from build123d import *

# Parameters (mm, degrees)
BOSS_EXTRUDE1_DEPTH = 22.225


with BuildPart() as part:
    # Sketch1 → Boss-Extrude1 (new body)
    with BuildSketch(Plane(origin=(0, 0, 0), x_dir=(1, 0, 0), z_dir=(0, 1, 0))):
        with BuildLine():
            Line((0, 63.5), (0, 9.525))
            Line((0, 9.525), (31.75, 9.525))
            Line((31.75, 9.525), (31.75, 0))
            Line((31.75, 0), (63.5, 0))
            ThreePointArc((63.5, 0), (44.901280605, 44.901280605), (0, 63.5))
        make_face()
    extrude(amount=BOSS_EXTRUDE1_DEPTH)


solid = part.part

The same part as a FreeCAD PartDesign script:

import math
import FreeCAD as App
import Part
import Sketcher
Q = App.Units.Quantity

doc = App.newDocument("Part")
params = doc.addObject("Spreadsheet::Sheet", "Params")
for row, (alias, value) in enumerate([
    ("sketch1_radius", "2.5 in"),
    ("sketch1_height", "2.125 in"),
    ("pad1_length", "0.875 in"),
], start=1):
    params.set(f"A{row}", alias)
    params.set(f"B{row}", "=" + value)
    params.setAlias(f"B{row}", alias)

body = doc.addObject("PartDesign::Body", "Body")

sketch1 = doc.addObject("Sketcher::SketchObject", "Sketch")
body.addObject(sketch1)
sketch1.AttachmentSupport = (doc.XZ_Plane, [""])
sketch1.MapMode = "FlatFace"
sketch1.addGeometry(Part.LineSegment(App.Vector(0, -63.5, 0), App.Vector(0, -9.525, 0)), False)
sketch1.addGeometry(Part.LineSegment(App.Vector(0, -9.525, 0), App.Vector(31.75, -9.525, 0)), False)
sketch1.addGeometry(Part.LineSegment(App.Vector(31.75, -9.525, 0), App.Vector(31.75, 0, 0)), False)
sketch1.addGeometry(Part.LineSegment(App.Vector(31.75, 0, 0), App.Vector(63.5, 0, 0)), False)
sketch1.addGeometry(Part.ArcOfCircle(Part.Circle(App.Vector(0, 0, 0), App.Vector(0, 0, 1), 63.5), math.radians(-90), math.radians(0)), False)
sketch1.addConstraint(Sketcher.Constraint("Coincident", 0, 2, 1, 1))
sketch1.addConstraint(Sketcher.Constraint("Coincident", 1, 2, 2, 1))
sketch1.addConstraint(Sketcher.Constraint("Coincident", 2, 2, 3, 1))
sketch1.addConstraint(Sketcher.Constraint("Coincident", 3, 2, 4, 2))
sketch1.addConstraint(Sketcher.Constraint("Coincident", 4, 1, 0, 1))
sketch1.addConstraint(Sketcher.Constraint("Vertical", 0))
sketch1.addConstraint(Sketcher.Constraint("Horizontal", 1))
sketch1.addConstraint(Sketcher.Constraint("Vertical", 2))
sketch1.addConstraint(Sketcher.Constraint("Horizontal", 3))
sketch1.addConstraint(Sketcher.Constraint("Coincident", 4, 3, -1, 1))
sketch1.addConstraint(Sketcher.Constraint("PointOnObject", 0, 2, -2))
sketch1.addConstraint(Sketcher.Constraint("PointOnObject", 2, 2, -1))
sketch1.addConstraint(Sketcher.Constraint("Equal", 1, 3))
sketch1.addConstraint(Sketcher.Constraint("Radius", 4, Q("2.5 in")))
sketch1.addConstraint(Sketcher.Constraint("DistanceY", 0, 1, 0, 2, Q("2.125 in")))
sketch1.setExpression("Constraints[13]", "Params.sketch1_radius")
sketch1.setExpression("Constraints[14]", "Params.sketch1_height")
pad1 = doc.addObject("PartDesign::Pad", "Pad")
body.addObject(pad1)
pad1.Profile = sketch1
pad1.setExpression("Length", "Params.pad1_length")
pad1.Reversed = True

doc.recompute()
